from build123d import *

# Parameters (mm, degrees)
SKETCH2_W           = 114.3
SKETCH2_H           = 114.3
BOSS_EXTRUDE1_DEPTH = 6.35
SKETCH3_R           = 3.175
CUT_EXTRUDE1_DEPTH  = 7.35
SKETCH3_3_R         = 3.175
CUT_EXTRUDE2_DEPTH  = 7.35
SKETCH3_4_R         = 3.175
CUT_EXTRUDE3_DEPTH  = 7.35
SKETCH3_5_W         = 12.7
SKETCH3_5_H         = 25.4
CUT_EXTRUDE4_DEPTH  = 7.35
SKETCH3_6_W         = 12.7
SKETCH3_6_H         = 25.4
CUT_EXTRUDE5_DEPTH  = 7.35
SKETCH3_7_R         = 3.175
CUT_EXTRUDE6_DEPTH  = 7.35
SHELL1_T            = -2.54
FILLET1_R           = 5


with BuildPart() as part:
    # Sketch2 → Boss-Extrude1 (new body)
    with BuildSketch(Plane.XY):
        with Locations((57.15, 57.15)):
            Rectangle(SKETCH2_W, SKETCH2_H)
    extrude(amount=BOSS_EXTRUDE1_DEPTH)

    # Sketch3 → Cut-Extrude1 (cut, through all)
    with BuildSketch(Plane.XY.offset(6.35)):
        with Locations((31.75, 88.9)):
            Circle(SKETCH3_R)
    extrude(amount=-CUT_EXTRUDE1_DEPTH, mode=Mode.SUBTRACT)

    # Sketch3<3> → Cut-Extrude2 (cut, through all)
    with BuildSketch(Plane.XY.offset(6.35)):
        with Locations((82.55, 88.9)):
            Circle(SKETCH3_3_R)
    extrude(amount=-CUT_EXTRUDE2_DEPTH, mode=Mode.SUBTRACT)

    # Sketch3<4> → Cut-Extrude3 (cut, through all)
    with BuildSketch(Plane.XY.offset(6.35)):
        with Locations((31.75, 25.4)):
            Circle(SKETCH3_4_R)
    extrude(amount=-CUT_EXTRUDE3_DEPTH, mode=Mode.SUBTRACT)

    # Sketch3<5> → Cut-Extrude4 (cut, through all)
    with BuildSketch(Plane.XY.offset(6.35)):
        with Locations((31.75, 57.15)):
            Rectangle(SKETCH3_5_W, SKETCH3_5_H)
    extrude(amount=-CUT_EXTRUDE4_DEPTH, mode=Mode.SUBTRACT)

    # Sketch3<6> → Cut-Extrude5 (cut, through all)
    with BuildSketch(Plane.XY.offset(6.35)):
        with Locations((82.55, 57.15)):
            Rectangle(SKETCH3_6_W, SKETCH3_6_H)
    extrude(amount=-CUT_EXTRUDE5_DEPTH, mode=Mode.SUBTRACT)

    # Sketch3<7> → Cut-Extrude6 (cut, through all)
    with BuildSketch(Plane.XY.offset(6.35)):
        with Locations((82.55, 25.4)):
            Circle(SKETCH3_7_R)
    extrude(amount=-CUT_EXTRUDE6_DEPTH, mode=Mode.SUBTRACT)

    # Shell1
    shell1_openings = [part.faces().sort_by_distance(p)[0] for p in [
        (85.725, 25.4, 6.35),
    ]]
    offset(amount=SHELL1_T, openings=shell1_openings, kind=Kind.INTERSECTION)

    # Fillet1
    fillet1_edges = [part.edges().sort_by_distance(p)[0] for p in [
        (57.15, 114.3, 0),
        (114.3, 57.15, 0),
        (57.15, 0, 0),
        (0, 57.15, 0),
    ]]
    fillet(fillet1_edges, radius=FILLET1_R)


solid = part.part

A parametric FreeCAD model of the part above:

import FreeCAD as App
import Part
import Sketcher
from FreeCAD import Vector
Q = App.Units.Quantity


def edges_at(feature, points):
    """Names of the edges that pass closest to the given points."""
    edges = feature.Shape.Edges
    near = lambda p: min(range(len(edges)), key=lambda i: edges[i].distToShape(Part.Vertex(*p))[0])
    return sorted({f"Edge{near(p) + 1}" for p in points})


def faces_at(feature, points):
    """Names of the faces that lie closest to the given points."""
    faces = feature.Shape.Faces
    near = lambda p: min(range(len(faces)), key=lambda i: faces[i].distToShape(Part.Vertex(*p))[0])
    return sorted({f"Face{near(p) + 1}" for p in points})

doc = App.newDocument("Part")
params = doc.addObject("Spreadsheet::Sheet", "Params")
for row, (alias, value) in enumerate([
    ("sketch1_width", "4.5 in"),
    ("pad1_length", "0.25 in"),
    ("sketch2_diameter", "0.25 in"),
    ("sketch3_diameter", "0.25 in"),
    ("sketch4_diameter", "0.25 in"),
    ("sketch5_height", "1 in"),
    ("sketch5_width", "0.5 in"),
    ("sketch6_height", "1 in"),
    ("sketch6_width", "0.5 in"),
    ("sketch7_diameter", "0.25 in"),
    ("thickness_wall", "0.1 in"),
    ("fillet_radius", "5 mm"),
], start=1):
    params.set(f"A{row}", alias)
    params.set(f"B{row}", "=" + value)
    params.setAlias(f"B{row}", alias)

body = doc.addObject("PartDesign::Body", "Body")

# Sketch on XY plane
sketch1 = body.newObject("Sketcher::SketchObject", "Sketch")
sketch1.AttachmentSupport = (doc.getObject("XY_Plane"), [""])
sketch1.MapMode = "FlatFace"
sketch1.addGeometry([
    Part.LineSegment(Vector(0, 114.3, 0), Vector(0, 0, 0)),
    Part.LineSegment(Vector(0, 0, 0), Vector(114.3, 0, 0)),
    Part.LineSegment(Vector(114.3, 0, 0), Vector(114.3, 114.3, 0)),
    Part.LineSegment(Vector(114.3, 114.3, 0), Vector(0, 114.3, 0)),
], False)
sketch1.addConstraint([
    Sketcher.Constraint("Coincident", 0, 2, 1, 1),
    Sketcher.Constraint("Coincident", 1, 2, 2, 1),
    Sketcher.Constraint("Coincident", 2, 2, 3, 1),
    Sketcher.Constraint("Coincident", 3, 2, 0, 1),
    Sketcher.Constraint("Vertical", 0),
    Sketcher.Constraint("Horizontal", 1),
    Sketcher.Constraint("Vertical", 2),
    Sketcher.Constraint("Horizontal", 3),
    Sketcher.Constraint("Coincident", 0, 2, -1, 1),
    Sketcher.Constraint("Equal", 3, 0),
    Sketcher.Constraint("DistanceX", 1, 1, 1, 2, Q("4.5 in")),
])
sketch1.setExpression("Constraints[10]", "Params.sketch1_width")
pad1 = body.newObject("PartDesign::Pad", "Pad")
pad1.Profile = sketch1
pad1.setExpression("Length", "Params.pad1_length")

# Sketch on XY plane
sketch2 = body.newObject("Sketcher::SketchObject", "Sketch001")
sketch2.AttachmentSupport = (doc.getObject("XY_Plane"), [""])
sketch2.MapMode = "FlatFace"
sketch2.AttachmentOffset = App.Placement(Vector(0, 0, 0.25 * 25.4), App.Rotation())
sketch2.addGeometry(Part.Circle(Vector(31.75, 88.9, 0), Vector(0, 0, 1), 3.175), False)
sketch2.addConstraint([
    Sketcher.Constraint("Diameter", 0, Q("0.25 in")),
    Sketcher.Constraint("DistanceY", -1, 1, 0, 3, Q("3.5 in")),
    Sketcher.Constraint("DistanceX", -1, 1, 0, 3, Q("1.25 in")),
])
sketch2.setExpression("Constraints[0]", "Params.sketch2_diameter")
pocket1 = body.newObject("PartDesign::Pocket", "Pocket")
pocket1.Profile = sketch2
pocket1.Type = "ThroughAll"

# Sketch on XY plane
sketch3 = body.newObject("Sketcher::SketchObject", "Sketch002")
sketch3.AttachmentSupport = (doc.getObject("XY_Plane"), [""])
sketch3.MapMode = "FlatFace"
sketch3.AttachmentOffset = App.Placement(Vector(0, 0, 0.25 * 25.4), App.Rotation())
sketch3.addGeometry(Part.Circle(Vector(82.55, 88.9, 0), Vector(0, 0, 1), 3.175), False)
sketch3.addConstraint([
    Sketcher.Constraint("Diameter", 0, Q("0.25 in")),
    Sketcher.Constraint("DistanceY", -1, 1, 0, 3, Q("3.5 in")),
    Sketcher.Constraint("DistanceX", -1, 1, 0, 3, Q("3.25 in")),
])
sketch3.setExpression("Constraints[0]", "Params.sketch3_diameter")
pocket2 = body.newObject("PartDesign::Pocket", "Pocket001")
pocket2.Profile = sketch3
pocket2.Type = "ThroughAll"

# Sketch on XY plane
sketch4 = body.newObject("Sketcher::SketchObject", "Sketch003")
sketch4.AttachmentSupport = (doc.getObject("XY_Plane"), [""])
sketch4.MapMode = "FlatFace"
sketch4.AttachmentOffset = App.Placement(Vector(0, 0, 0.25 * 25.4), App.Rotation())
sketch4.addGeometry(Part.Circle(Vector(31.75, 25.4, 0), Vector(0, 0, 1), 3.175), False)
sketch4.addConstraint([
    Sketcher.Constraint("Diameter", 0, Q("0.25 in")),
    Sketcher.Constraint("DistanceY", -1, 1, 0, 3, Q("1 in")),
    Sketcher.Constraint("DistanceX", -1, 1, 0, 3, Q("1.25 in")),
])
sketch4.setExpression("Constraints[0]", "Params.sketch4_diameter")
pocket3 = body.newObject("PartDesign::Pocket", "Pocket002")
pocket3.Profile = sketch4
pocket3.Type = "ThroughAll"

# Sketch on XY plane
sketch5 = body.newObject("Sketcher::SketchObject", "Sketch004")
sketch5.AttachmentSupport = (doc.getObject("XY_Plane"), [""])
sketch5.MapMode = "FlatFace"
sketch5.AttachmentOffset = App.Placement(Vector(0, 0, 0.25 * 25.4), App.Rotation())
sketch5.addGeometry([
    Part.LineSegment(Vector(25.4, 69.85, 0), Vector(25.4, 44.45, 0)),
    Part.LineSegment(Vector(25.4, 44.45, 0), Vector(38.1, 44.45, 0)),
    Part.LineSegment(Vector(38.1, 44.45, 0), Vector(38.1, 69.85, 0)),
    Part.LineSegment(Vector(38.1, 69.85, 0), Vector(25.4, 69.85, 0)),
], False)
sketch5.addConstraint([
    Sketcher.Constraint("Coincident", 0, 2, 1, 1),
    Sketcher.Constraint("Coincident", 1, 2, 2, 1),
    Sketcher.Constraint("Coincident", 2, 2, 3, 1),
    Sketcher.Constraint("Coincident", 3, 2, 0, 1),
    Sketcher.Constraint("Vertical", 0),
    Sketcher.Constraint("Horizontal", 1),
    Sketcher.Constraint("Vertical", 2),
    Sketcher.Constraint("Horizontal", 3),
    Sketcher.Constraint("DistanceY", 0, 2, 0, 1, Q("1 in")),
    Sketcher.Constraint("DistanceX", 1, 1, 1, 2, Q("0.5 in")),
    Sketcher.Constraint("DistanceX", -1, 1, 0, 2, Q("1 in")),
    Sketcher.Constraint("DistanceY", -1, 1, 0, 2, Q("1.75 in")),
])
sketch5.setExpression("Constraints[8]", "Params.sketch5_height")
sketch5.setExpression("Constraints[9]", "Params.sketch5_width")
pocket4 = body.newObject("PartDesign::Pocket", "Pocket003")
pocket4.Profile = sketch5
pocket4.Type = "ThroughAll"

# Sketch on XY plane
sketch6 = body.newObject("Sketcher::SketchObject", "Sketch005")
sketch6.AttachmentSupport = (doc.getObject("XY_Plane"), [""])
sketch6.MapMode = "FlatFace"
sketch6.AttachmentOffset = App.Placement(Vector(0, 0, 0.25 * 25.4), App.Rotation())
sketch6.addGeometry([
    Part.LineSegment(Vector(76.2, 69.85, 0), Vector(76.2, 44.45, 0)),
    Part.LineSegment(Vector(76.2, 44.45, 0), Vector(88.9, 44.45, 0)),
    Part.LineSegment(Vector(88.9, 44.45, 0), Vector(88.9, 69.85, 0)),
    Part.LineSegment(Vector(88.9, 69.85, 0), Vector(76.2, 69.85, 0)),
], False)
sketch6.addConstraint([
    Sketcher.Constraint("Coincident", 0, 2, 1, 1),
    Sketcher.Constraint("Coincident", 1, 2, 2, 1),
    Sketcher.Constraint("Coincident", 2, 2, 3, 1),
    Sketcher.Constraint("Coincident", 3, 2, 0, 1),
    Sketcher.Constraint("Vertical", 0),
    Sketcher.Constraint("Horizontal", 1),
    Sketcher.Constraint("Vertical", 2),
    Sketcher.Constraint("Horizontal", 3),
    Sketcher.Constraint("DistanceY", 0, 2, 0, 1, Q("1 in")),
    Sketcher.Constraint("DistanceX", 1, 1, 1, 2, Q("0.5 in")),
    Sketcher.Constraint("DistanceX", -1, 1, 0, 2, Q("3 in")),
    Sketcher.Constraint("DistanceY", -1, 1, 0, 2, Q("1.75 in")),
])
sketch6.setExpression("Constraints[8]", "Params.sketch6_height")
sketch6.setExpression("Constraints[9]", "Params.sketch6_width")
pocket5 = body.newObject("PartDesign::Pocket", "Pocket004")
pocket5.Profile = sketch6
pocket5.Type = "ThroughAll"

# Sketch on XY plane
sketch7 = body.newObject("Sketcher::SketchObject", "Sketch006")
sketch7.AttachmentSupport = (doc.getObject("XY_Plane"), [""])
sketch7.MapMode = "FlatFace"
sketch7.AttachmentOffset = App.Placement(Vector(0, 0, 0.25 * 25.4), App.Rotation())
sketch7.addGeometry(Part.Circle(Vector(82.55, 25.4, 0), Vector(0, 0, 1), 3.175), False)
sketch7.addConstraint([
    Sketcher.Constraint("Diameter", 0, Q("0.25 in")),
    Sketcher.Constraint("DistanceY", -1, 1, 0, 3, Q("1 in")),
    Sketcher.Constraint("DistanceX", -1, 1, 0, 3, Q("3.25 in")),
])
sketch7.setExpression("Constraints[0]", "Params.sketch7_diameter")
pocket6 = body.newObject("PartDesign::Pocket", "Pocket005")
pocket6.Profile = sketch7
pocket6.Type = "ThroughAll"
doc.recompute()

thickness = body.newObject("PartDesign::Thickness", "Thickness")
thickness.Base = (pocket6, faces_at(pocket6, [(57.15, 57.15, 6.35)]))
thickness.setExpression("Value", "Params.thickness_wall")
thickness.Reversed = True
thickness.Join = "Intersection"
doc.recompute()

fillet = body.newObject("PartDesign::Fillet", "Fillet")
fillet.Base = (thickness, edges_at(thickness, [
    (57.15, 114.3, 0),
    (114.3, 57.15, 0),
    (57.15, 0, 0),
    (0, 57.15, 0),
]))
fillet.setExpression("Radius", "Params.fillet_radius")

doc.recompute()
